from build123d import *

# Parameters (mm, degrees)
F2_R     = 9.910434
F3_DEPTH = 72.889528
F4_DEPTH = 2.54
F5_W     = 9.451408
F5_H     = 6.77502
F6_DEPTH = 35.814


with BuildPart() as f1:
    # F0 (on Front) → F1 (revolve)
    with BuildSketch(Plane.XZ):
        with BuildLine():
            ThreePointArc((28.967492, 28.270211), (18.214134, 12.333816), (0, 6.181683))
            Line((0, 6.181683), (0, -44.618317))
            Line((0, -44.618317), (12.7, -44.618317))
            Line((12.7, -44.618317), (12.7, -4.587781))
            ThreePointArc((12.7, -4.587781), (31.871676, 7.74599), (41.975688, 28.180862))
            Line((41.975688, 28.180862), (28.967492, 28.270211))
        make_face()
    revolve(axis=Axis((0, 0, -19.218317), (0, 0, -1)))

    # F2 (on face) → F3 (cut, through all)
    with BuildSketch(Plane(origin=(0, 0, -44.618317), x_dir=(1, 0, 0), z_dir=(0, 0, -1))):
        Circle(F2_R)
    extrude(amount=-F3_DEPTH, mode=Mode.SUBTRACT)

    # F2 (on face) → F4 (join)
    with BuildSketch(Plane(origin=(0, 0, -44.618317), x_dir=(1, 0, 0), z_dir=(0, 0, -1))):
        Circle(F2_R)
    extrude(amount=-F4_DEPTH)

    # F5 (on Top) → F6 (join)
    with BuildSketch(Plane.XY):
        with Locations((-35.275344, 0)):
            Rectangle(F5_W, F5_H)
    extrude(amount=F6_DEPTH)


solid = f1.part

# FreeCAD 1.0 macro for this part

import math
import FreeCAD as App
import Part
import Sketcher
from FreeCAD import Vector
Q = App.Units.Quantity

doc = App.newDocument("Part")
body = doc.addObject("PartDesign::Body", "Body")

# Sketch on XZ plane
sketch1 = body.newObject("Sketcher::SketchObject", "Sketch")
sketch1.AttachmentSupport = (doc.getObject("XZ_Plane"), [""])
sketch1.MapMode = "FlatFace"
sketch1.addGeometry(Part.ArcOfCircle(Part.Circle(Vector(0, 36, 0), Vector(0, 0, 1), 30), math.radians(-90), math.radians(-15)), False)
sketch1.addGeometry(Part.LineSegment(Vector(0, 6, 0), Vector(0, -45, 0)), False)
sketch1.addGeometry(Part.LineSegment(Vector(0, -45, 0), Vector(13, -45, 0)), False)
sketch1.addGeometry(Part.LineSegment(Vector(13, -45, 0), Vector(13, -5, 0)), False)
sketch1.addGeometry(Part.ArcOfCircle(Part.Circle(Vector(0, 36, 0), Vector(0, 0, 1), 43), math.radians(-73), math.radians(-11)), False)
sketch1.addGeometry(Part.LineSegment(Vector(42, 28, 0), Vector(29, 28, 0)), False)
sketch1.addConstraint(Sketcher.Constraint("Coincident", 0, 1, 1, 1))
sketch1.addConstraint(Sketcher.Constraint("Coincident", 1, 2, 2, 1))
sketch1.addConstraint(Sketcher.Constraint("Coincident", 2, 2, 3, 1))
sketch1.addConstraint(Sketcher.Constraint("Coincident", 3, 2, 4, 1))
sketch1.addConstraint(Sketcher.Constraint("Coincident", 4, 2, 5, 1))
sketch1.addConstraint(Sketcher.Constraint("Coincident", 5, 2, 0, 2))
sketch1.addConstraint(Sketcher.Constraint("Vertical", 1))
sketch1.addConstraint(Sketcher.Constraint("Horizontal", 2))
sketch1.addConstraint(Sketcher.Constraint("Vertical", 3))
sketch1.addConstraint(Sketcher.Constraint("Coincident", 4, 3, 0, 3))
sketch1.addConstraint(Sketcher.Constraint("PointOnObject", 0, 3, -2))
sketch1.addConstraint(Sketcher.Constraint("PointOnObject", 0, 1, -2))
sketch1.addConstraint(Sketcher.Constraint("DistanceY", 1, 2, 1, 1, Q("2 in")))
sketch1.addConstraint(Sketcher.Constraint("DistanceX", 2, 1, 2, 2, Q("0.5 in")))
sketch1.addConstraint(Sketcher.Constraint("Radius", 0, Q("30.038639 mm")))
sketch1.addConstraint(Sketcher.Constraint("Radius", 4, Q("42.738637 mm")))
sketch1.addConstraint(Sketcher.Constraint("DistanceY", -1, 1, 4, 3, Q("36.220321 mm")))
sketch1.addConstraint(Sketcher.Constraint("DistanceX", -1, 1, 5, 2, Q("28.967492 mm")))
sketch1.addConstraint(Sketcher.Constraint("DistanceY", 4, 2, 4, 3, Q("8.039459 mm")))
revolution = body.newObject("PartDesign::Revolution", "Revolution")
revolution.Profile = sketch1
revolution.ReferenceAxis = (sketch1, ["V_Axis"])
revolution.Angle = 360

# Sketch on XY plane
sketch2 = body.newObject("Sketcher::SketchObject", "Sketch001")
sketch2.AttachmentSupport = (doc.getObject("XY_Plane"), [""])
sketch2.MapMode = "FlatFace"
sketch2.AttachmentOffset = App.Placement(Vector(0, 0, -44.618317), App.Rotation())
sketch2.addGeometry(Part.Circle(Vector(0, 0, 0), Vector(0, 0, 1), 10), False)
sketch2.addConstraint(Sketcher.Constraint("Coincident", 0, 3, -1, 1))
sketch2.addConstraint(Sketcher.Constraint("Diameter", 0, Q("19.820868 mm")))
pocket1 = body.newObject("PartDesign::Pocket", "Pocket")
pocket1.Profile = sketch2
pocket1.Type = "ThroughAll"
pocket1.Reversed = True

# Sketch on XY plane
sketch3 = body.newObject("Sketcher::SketchObject", "Sketch002")
sketch3.AttachmentSupport = (doc.getObject("XY_Plane"), [""])
sketch3.MapMode = "FlatFace"
sketch3.AttachmentOffset = App.Placement(Vector(0, 0, -44.618317), App.Rotation())
sketch3.addGeometry(Part.Circle(Vector(0, 0, 0), Vector(0, 0, 1), 10), False)
sketch3.addConstraint(Sketcher.Constraint("Coincident", 0, 3, -1, 1))
sketch3.addConstraint(Sketcher.Constraint("Diameter", 0, Q("19.820868 mm")))
pad1 = body.newObject("PartDesign::Pad", "Pad")
pad1.Profile = sketch3
pad1.Length = Q("0.1 in")

# Sketch on XY plane
sketch4 = body.newObject("Sketcher::SketchObject", "Sketch003")
sketch4.AttachmentSupport = (doc.getObject("XY_Plane"), [""])
sketch4.MapMode = "FlatFace"
sketch4.addGeometry(Part.LineSegment(Vector(-40, 3, 0), Vector(-40, -3, 0)), False)
sketch4.addGeometry(Part.LineSegment(Vector(-40, -3, 0), Vector(-31, -3, 0)), False)
sketch4.addGeometry(Part.LineSegment(Vector(-31, -3, 0), Vector(-31, 3, 0)), False)
sketch4.addGeometry(Part.LineSegment(Vector(-31, 3, 0), Vector(-40, 3, 0)), False)
sketch4.addConstraint(Sketcher.Constraint("Coincident", 0, 2, 1, 1))
sketch4.addConstraint(Sketcher.Constraint("Coincident", 1, 2, 2, 1))
sketch4.addConstraint(Sketcher.Constraint("Coincident", 2, 2, 3, 1))
sketch4.addConstraint(Sketcher.Constraint("Coincident", 3, 2, 0, 1))
sketch4.addConstraint(Sketcher.Constraint("Vertical", 0))
sketch4.addConstraint(Sketcher.Constraint("Horizontal", 1))
sketch4.addConstraint(Sketcher.Constraint("Vertical", 2))
sketch4.addConstraint(Sketcher.Constraint("Horizontal", 3))
sketch4.addConstraint(Sketcher.Constraint("DistanceY", 0, 2, 0, 1, Q("6.77502 mm")))
sketch4.addConstraint(Sketcher.Constraint("DistanceX", 1, 1, 1, 2, Q("9.451408 mm")))
sketch4.addConstraint(Sketcher.Constraint("DistanceY", 0, 2, -1, 1, Q("3.38751 mm")))
sketch4.addConstraint(Sketcher.Constraint("DistanceX", 1, 2, -1, 1, Q("30.54964 mm")))
pad2 = body.newObject("PartDesign::Pad", "Pad001")
pad2.Profile = sketch4
pad2.Length = Q("1.41 in")

doc.recompute()
